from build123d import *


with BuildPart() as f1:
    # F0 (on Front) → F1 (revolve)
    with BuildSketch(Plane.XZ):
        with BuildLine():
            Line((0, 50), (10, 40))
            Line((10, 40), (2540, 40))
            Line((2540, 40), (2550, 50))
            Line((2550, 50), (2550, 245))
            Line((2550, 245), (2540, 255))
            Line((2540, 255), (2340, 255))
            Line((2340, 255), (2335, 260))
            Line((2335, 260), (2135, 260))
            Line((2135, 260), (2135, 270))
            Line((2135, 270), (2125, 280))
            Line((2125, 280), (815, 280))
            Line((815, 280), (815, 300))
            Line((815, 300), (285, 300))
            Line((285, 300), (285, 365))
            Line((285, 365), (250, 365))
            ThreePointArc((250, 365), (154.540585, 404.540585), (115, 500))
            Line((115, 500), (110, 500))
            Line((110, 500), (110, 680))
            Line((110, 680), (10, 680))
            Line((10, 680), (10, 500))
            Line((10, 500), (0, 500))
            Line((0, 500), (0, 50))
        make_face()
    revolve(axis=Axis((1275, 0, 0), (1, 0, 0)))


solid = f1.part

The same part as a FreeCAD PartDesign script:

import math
import FreeCAD as App
import Part
import Sketcher

doc = App.newDocument("Part")
params = doc.addObject("Spreadsheet::Sheet", "Params")
for row, (alias, value) in enumerate([
    ("sketch1_radius", "135.000002 mm"),
    ("sketch1_width", "2530 mm"),
    ("sketch1_width2", "200 mm"),
    ("sketch1_width3", "1310 mm"),
    ("sketch1_width4", "530 mm"),
    ("revolution_angle", "360 deg"),
], start=1):
    params.set(f"A{row}", alias)
    params.set(f"B{row}", "=" + value)
    params.setAlias(f"B{row}", alias)

body = doc.addObject("PartDesign::Body", "Body")

sketch1 = body.newObject("Sketcher::SketchObject", "Sketch")
sketch1.AttachmentSupport = (doc.getObject("XZ_Plane"), [""])
sketch1.MapMode = "FlatFace"
sketch1.addGeometry(Part.LineSegment(App.Vector(0, 50, 0), App.Vector(10, 40, 0)), False)
sketch1.addGeometry(Part.LineSegment(App.Vector(10, 40, 0), App.Vector(2540, 40, 0)), False)
sketch1.addGeometry(Part.LineSegment(App.Vector(2540, 40, 0), App.Vector(2550, 50, 0)), False)
sketch1.addGeometry(Part.LineSegment(App.Vector(2550, 50, 0), App.Vector(2550, 245, 0)), False)
sketch1.addGeometry(Part.LineSegment(App.Vector(2550, 245, 0), App.Vector(2540, 255, 0)), False)
sketch1.addGeometry(Part.LineSegment(App.Vector(2540, 255, 0), App.Vector(2340, 255, 0)), False)
sketch1.addGeometry(Part.LineSegment(App.Vector(2340, 255, 0), App.Vector(2335, 260, 0)), False)
sketch1.addGeometry(Part.LineSegment(App.Vector(2335, 260, 0), App.Vector(2135, 260, 0)), False)
sketch1.addGeometry(Part.LineSegment(App.Vector(2135, 260, 0), App.Vector(2135, 270, 0)), False)
sketch1.addGeometry(Part.LineSegment(App.Vector(2135, 270, 0), App.Vector(2125, 280, 0)), False)
sketch1.addGeometry(Part.LineSegment(App.Vector(2125, 280, 0), App.Vector(815, 280, 0)), False)
sketch1.addGeometry(Part.LineSegment(App.Vector(815, 280, 0), App.Vector(815, 300, 0)), False)
sketch1.addGeometry(Part.LineSegment(App.Vector(815, 300, 0), App.Vector(285, 300, 0)), False)
sketch1.addGeometry(Part.LineSegment(App.Vector(285, 300, 0), App.Vector(285, 365, 0)), False)
sketch1.addGeometry(Part.LineSegment(App.Vector(285, 365, 0), App.Vector(250, 365, 0)), False)
sketch1.addGeometry(Part.ArcOfCircle(Part.Circle(App.Vector(250, 500, 0), App.Vector(0, 0, 1), 135), math.radians(-180), math.radians(-90)), False)
sketch1.addGeometry(Part.LineSegment(App.Vector(115, 500, 0), App.Vector(110, 500, 0)), False)
sketch1.addGeometry(Part.LineSegment(App.Vector(110, 500, 0), App.Vector(110, 680, 0)), False)
sketch1.addGeometry(Part.LineSegment(App.Vector(110, 680, 0), App.Vector(10, 680, 0)), False)
sketch1.addGeometry(Part.LineSegment(App.Vector(10, 680, 0), App.Vector(10, 500, 0)), False)
sketch1.addGeometry(Part.LineSegment(App.Vector(10, 500, 0), App.Vector(0, 500, 0)), False)
sketch1.addGeometry(Part.LineSegment(App.Vector(0, 500, 0), App.Vector(0, 50, 0)), False)
sketch1.addConstraint(Sketcher.Constraint("Coincident", 0, 2, 1, 1))
sketch1.addConstraint(Sketcher.Constraint("Coincident", 1, 2, 2, 1))
sketch1.addConstraint(Sketcher.Constraint("Coincident", 2, 2, 3, 1))
sketch1.addConstraint(Sketcher.Constraint("Coincident", 3, 2, 4, 1))
sketch1.addConstraint(Sketcher.Constraint("Coincident", 4, 2, 5, 1))
sketch1.addConstraint(Sketcher.Constraint("Coincident", 5, 2, 6, 1))
sketch1.addConstraint(Sketcher.Constraint("Coincident", 6, 2, 7, 1))
sketch1.addConstraint(Sketcher.Constraint("Coincident", 7, 2, 8, 1))
sketch1.addConstraint(Sketcher.Constraint("Coincident", 8, 2, 9, 1))
sketch1.addConstraint(Sketcher.Constraint("Coincident", 9, 2, 10, 1))
sketch1.addConstraint(Sketcher.Constraint("Coincident", 10, 2, 11, 1))
sketch1.addConstraint(Sketcher.Constraint("Coincident", 11, 2, 12, 1))
sketch1.addConstraint(Sketcher.Constraint("Coincident", 12, 2, 13, 1))
sketch1.addConstraint(Sketcher.Constraint("Coincident", 13, 2, 14, 1))
sketch1.addConstraint(Sketcher.Constraint("Tangent", 14, 2, 15, 2))
sketch1.addConstraint(Sketcher.Constraint("Coincident", 15, 1, 16, 1))
sketch1.addConstraint(Sketcher.Constraint("Coincident", 16, 2, 17, 1))
sketch1.addConstraint(Sketcher.Constraint("Coincident", 17, 2, 18, 1))
sketch1.addConstraint(Sketcher.Constraint("Coincident", 18, 2, 19, 1))
sketch1.addConstraint(Sketcher.Constraint("Coincident", 19, 2, 20, 1))
sketch1.addConstraint(Sketcher.Constraint("Coincident", 20, 2, 21, 1))
sketch1.addConstraint(Sketcher.Constraint("Coincident", 21, 2, 0, 1))
sketch1.addConstraint(Sketcher.Constraint("Horizontal", 1))
sketch1.addConstraint(Sketcher.Constraint("Vertical", 3))
sketch1.addConstraint(Sketcher.Constraint("Horizontal", 5))
sketch1.addConstraint(Sketcher.Constraint("Horizontal", 7))
sketch1.addConstraint(Sketcher.Constraint("Vertical", 8))
sketch1.addConstraint(Sketcher.Constraint("Horizontal", 10))
sketch1.addConstraint(Sketcher.Constraint("Vertical", 11))
sketch1.addConstraint(Sketcher.Constraint("Horizontal", 12))
sketch1.addConstraint(Sketcher.Constraint("Vertical", 13))
sketch1.addConstraint(Sketcher.Constraint("Horizontal", 14))
sketch1.addConstraint(Sketcher.Constraint("Horizontal", 16))
sketch1.addConstraint(Sketcher.Constraint("Vertical", 17))
sketch1.addConstraint(Sketcher.Constraint("Horizontal", 18))
sketch1.addConstraint(Sketcher.Constraint("Vertical", 19))
sketch1.addConstraint(Sketcher.Constraint("Horizontal", 20))
sketch1.addConstraint(Sketcher.Constraint("Vertical", 21))
sketch1.addConstraint(Sketcher.Constraint("PointOnObject", 20, 2, -2))
sketch1.addConstraint(Sketcher.Constraint("Perpendicular", 0, 2))
sketch1.addConstraint(Sketcher.Constraint("Perpendicular", 2, 4))
sketch1.addConstraint(Sketcher.Constraint("Parallel", 4, 6))
sketch1.addConstraint(Sketcher.Constraint("Parallel", 6, 9))
sketch1.addConstraint(Sketcher.Constraint("Horizontal", 16, 2, 19, 2))
sketch1.addConstraint(Sketcher.Constraint("Horizontal", 2, 2, 21, 2))
sketch1.addConstraint(Sketcher.Constraint("Vertical", 1, 2, 4, 2))
sketch1.addConstraint(Sketcher.Constraint("Vertical", 0, 2, 18, 2))
sketch1.addConstraint(Sketcher.Constraint("Equal", 5, 7))
sketch1.addConstraint(Sketcher.Constraint("Equal", 20, 8))
sketch1.addConstraint(Sketcher.Constraint("Equal", 0, 2))
sketch1.addConstraint(Sketcher.Constraint("Equal", 4, 9))
sketch1.addConstraint(Sketcher.Constraint("Radius", 15, 135.000002))
sketch1.addConstraint(Sketcher.Constraint("DistanceX", 1, 1, 1, 2, 2530.0))
sketch1.addConstraint(Sketcher.Constraint("DistanceX", 5, 2, 5, 1, 200.0))
sketch1.addConstraint(Sketcher.Constraint("DistanceX", 10, 2, 10, 1, 1310.0))
sketch1.addConstraint(Sketcher.Constraint("DistanceX", 12, 2, 12, 1, 530.0))
sketch1.addConstraint(Sketcher.Constraint("DistanceX", 14, 2, 14, 1, 35.0))
sketch1.addConstraint(Sketcher.Constraint("DistanceX", 16, 2, 16, 1, 5.0))
sketch1.addConstraint(Sketcher.Constraint("DistanceX", 18, 2, 18, 1, 100.0))
sketch1.addConstraint(Sketcher.Constraint("DistanceX", 20, 2, 20, 1, 10.0))
sketch1.addConstraint(Sketcher.Constraint("DistanceY", 3, 1, 3, 2, 195.0))
sketch1.addConstraint(Sketcher.Constraint("DistanceY", 11, 1, 11, 2, 20.0))
sketch1.addConstraint(Sketcher.Constraint("DistanceY", 13, 1, 13, 2, 65.0))
sketch1.addConstraint(Sketcher.Constraint("DistanceY", 17, 1, 17, 2, 180.0))
sketch1.addConstraint(Sketcher.Constraint("DistanceY", 21, 2, 21, 1, 450.0))
sketch1.addConstraint(Sketcher.Constraint("DistanceY", -1, 1, 15, 3, 500.000002))
sketch1.setExpression("Constraints[51]", "Params.sketch1_radius")
sketch1.setExpression("Constraints[52]", "Params.sketch1_width")
sketch1.setExpression("Constraints[53]", "Params.sketch1_width2")
sketch1.setExpression("Constraints[54]", "Params.sketch1_width3")
sketch1.setExpression("Constraints[55]", "Params.sketch1_width4")
revolution = body.newObject("PartDesign::Revolution", "Revolution")
revolution.Profile = sketch1
revolution.ReferenceAxis = (sketch1, ["H_Axis"])
revolution.setExpression("Angle", "Params.revolution_angle")

doc.recompute()
